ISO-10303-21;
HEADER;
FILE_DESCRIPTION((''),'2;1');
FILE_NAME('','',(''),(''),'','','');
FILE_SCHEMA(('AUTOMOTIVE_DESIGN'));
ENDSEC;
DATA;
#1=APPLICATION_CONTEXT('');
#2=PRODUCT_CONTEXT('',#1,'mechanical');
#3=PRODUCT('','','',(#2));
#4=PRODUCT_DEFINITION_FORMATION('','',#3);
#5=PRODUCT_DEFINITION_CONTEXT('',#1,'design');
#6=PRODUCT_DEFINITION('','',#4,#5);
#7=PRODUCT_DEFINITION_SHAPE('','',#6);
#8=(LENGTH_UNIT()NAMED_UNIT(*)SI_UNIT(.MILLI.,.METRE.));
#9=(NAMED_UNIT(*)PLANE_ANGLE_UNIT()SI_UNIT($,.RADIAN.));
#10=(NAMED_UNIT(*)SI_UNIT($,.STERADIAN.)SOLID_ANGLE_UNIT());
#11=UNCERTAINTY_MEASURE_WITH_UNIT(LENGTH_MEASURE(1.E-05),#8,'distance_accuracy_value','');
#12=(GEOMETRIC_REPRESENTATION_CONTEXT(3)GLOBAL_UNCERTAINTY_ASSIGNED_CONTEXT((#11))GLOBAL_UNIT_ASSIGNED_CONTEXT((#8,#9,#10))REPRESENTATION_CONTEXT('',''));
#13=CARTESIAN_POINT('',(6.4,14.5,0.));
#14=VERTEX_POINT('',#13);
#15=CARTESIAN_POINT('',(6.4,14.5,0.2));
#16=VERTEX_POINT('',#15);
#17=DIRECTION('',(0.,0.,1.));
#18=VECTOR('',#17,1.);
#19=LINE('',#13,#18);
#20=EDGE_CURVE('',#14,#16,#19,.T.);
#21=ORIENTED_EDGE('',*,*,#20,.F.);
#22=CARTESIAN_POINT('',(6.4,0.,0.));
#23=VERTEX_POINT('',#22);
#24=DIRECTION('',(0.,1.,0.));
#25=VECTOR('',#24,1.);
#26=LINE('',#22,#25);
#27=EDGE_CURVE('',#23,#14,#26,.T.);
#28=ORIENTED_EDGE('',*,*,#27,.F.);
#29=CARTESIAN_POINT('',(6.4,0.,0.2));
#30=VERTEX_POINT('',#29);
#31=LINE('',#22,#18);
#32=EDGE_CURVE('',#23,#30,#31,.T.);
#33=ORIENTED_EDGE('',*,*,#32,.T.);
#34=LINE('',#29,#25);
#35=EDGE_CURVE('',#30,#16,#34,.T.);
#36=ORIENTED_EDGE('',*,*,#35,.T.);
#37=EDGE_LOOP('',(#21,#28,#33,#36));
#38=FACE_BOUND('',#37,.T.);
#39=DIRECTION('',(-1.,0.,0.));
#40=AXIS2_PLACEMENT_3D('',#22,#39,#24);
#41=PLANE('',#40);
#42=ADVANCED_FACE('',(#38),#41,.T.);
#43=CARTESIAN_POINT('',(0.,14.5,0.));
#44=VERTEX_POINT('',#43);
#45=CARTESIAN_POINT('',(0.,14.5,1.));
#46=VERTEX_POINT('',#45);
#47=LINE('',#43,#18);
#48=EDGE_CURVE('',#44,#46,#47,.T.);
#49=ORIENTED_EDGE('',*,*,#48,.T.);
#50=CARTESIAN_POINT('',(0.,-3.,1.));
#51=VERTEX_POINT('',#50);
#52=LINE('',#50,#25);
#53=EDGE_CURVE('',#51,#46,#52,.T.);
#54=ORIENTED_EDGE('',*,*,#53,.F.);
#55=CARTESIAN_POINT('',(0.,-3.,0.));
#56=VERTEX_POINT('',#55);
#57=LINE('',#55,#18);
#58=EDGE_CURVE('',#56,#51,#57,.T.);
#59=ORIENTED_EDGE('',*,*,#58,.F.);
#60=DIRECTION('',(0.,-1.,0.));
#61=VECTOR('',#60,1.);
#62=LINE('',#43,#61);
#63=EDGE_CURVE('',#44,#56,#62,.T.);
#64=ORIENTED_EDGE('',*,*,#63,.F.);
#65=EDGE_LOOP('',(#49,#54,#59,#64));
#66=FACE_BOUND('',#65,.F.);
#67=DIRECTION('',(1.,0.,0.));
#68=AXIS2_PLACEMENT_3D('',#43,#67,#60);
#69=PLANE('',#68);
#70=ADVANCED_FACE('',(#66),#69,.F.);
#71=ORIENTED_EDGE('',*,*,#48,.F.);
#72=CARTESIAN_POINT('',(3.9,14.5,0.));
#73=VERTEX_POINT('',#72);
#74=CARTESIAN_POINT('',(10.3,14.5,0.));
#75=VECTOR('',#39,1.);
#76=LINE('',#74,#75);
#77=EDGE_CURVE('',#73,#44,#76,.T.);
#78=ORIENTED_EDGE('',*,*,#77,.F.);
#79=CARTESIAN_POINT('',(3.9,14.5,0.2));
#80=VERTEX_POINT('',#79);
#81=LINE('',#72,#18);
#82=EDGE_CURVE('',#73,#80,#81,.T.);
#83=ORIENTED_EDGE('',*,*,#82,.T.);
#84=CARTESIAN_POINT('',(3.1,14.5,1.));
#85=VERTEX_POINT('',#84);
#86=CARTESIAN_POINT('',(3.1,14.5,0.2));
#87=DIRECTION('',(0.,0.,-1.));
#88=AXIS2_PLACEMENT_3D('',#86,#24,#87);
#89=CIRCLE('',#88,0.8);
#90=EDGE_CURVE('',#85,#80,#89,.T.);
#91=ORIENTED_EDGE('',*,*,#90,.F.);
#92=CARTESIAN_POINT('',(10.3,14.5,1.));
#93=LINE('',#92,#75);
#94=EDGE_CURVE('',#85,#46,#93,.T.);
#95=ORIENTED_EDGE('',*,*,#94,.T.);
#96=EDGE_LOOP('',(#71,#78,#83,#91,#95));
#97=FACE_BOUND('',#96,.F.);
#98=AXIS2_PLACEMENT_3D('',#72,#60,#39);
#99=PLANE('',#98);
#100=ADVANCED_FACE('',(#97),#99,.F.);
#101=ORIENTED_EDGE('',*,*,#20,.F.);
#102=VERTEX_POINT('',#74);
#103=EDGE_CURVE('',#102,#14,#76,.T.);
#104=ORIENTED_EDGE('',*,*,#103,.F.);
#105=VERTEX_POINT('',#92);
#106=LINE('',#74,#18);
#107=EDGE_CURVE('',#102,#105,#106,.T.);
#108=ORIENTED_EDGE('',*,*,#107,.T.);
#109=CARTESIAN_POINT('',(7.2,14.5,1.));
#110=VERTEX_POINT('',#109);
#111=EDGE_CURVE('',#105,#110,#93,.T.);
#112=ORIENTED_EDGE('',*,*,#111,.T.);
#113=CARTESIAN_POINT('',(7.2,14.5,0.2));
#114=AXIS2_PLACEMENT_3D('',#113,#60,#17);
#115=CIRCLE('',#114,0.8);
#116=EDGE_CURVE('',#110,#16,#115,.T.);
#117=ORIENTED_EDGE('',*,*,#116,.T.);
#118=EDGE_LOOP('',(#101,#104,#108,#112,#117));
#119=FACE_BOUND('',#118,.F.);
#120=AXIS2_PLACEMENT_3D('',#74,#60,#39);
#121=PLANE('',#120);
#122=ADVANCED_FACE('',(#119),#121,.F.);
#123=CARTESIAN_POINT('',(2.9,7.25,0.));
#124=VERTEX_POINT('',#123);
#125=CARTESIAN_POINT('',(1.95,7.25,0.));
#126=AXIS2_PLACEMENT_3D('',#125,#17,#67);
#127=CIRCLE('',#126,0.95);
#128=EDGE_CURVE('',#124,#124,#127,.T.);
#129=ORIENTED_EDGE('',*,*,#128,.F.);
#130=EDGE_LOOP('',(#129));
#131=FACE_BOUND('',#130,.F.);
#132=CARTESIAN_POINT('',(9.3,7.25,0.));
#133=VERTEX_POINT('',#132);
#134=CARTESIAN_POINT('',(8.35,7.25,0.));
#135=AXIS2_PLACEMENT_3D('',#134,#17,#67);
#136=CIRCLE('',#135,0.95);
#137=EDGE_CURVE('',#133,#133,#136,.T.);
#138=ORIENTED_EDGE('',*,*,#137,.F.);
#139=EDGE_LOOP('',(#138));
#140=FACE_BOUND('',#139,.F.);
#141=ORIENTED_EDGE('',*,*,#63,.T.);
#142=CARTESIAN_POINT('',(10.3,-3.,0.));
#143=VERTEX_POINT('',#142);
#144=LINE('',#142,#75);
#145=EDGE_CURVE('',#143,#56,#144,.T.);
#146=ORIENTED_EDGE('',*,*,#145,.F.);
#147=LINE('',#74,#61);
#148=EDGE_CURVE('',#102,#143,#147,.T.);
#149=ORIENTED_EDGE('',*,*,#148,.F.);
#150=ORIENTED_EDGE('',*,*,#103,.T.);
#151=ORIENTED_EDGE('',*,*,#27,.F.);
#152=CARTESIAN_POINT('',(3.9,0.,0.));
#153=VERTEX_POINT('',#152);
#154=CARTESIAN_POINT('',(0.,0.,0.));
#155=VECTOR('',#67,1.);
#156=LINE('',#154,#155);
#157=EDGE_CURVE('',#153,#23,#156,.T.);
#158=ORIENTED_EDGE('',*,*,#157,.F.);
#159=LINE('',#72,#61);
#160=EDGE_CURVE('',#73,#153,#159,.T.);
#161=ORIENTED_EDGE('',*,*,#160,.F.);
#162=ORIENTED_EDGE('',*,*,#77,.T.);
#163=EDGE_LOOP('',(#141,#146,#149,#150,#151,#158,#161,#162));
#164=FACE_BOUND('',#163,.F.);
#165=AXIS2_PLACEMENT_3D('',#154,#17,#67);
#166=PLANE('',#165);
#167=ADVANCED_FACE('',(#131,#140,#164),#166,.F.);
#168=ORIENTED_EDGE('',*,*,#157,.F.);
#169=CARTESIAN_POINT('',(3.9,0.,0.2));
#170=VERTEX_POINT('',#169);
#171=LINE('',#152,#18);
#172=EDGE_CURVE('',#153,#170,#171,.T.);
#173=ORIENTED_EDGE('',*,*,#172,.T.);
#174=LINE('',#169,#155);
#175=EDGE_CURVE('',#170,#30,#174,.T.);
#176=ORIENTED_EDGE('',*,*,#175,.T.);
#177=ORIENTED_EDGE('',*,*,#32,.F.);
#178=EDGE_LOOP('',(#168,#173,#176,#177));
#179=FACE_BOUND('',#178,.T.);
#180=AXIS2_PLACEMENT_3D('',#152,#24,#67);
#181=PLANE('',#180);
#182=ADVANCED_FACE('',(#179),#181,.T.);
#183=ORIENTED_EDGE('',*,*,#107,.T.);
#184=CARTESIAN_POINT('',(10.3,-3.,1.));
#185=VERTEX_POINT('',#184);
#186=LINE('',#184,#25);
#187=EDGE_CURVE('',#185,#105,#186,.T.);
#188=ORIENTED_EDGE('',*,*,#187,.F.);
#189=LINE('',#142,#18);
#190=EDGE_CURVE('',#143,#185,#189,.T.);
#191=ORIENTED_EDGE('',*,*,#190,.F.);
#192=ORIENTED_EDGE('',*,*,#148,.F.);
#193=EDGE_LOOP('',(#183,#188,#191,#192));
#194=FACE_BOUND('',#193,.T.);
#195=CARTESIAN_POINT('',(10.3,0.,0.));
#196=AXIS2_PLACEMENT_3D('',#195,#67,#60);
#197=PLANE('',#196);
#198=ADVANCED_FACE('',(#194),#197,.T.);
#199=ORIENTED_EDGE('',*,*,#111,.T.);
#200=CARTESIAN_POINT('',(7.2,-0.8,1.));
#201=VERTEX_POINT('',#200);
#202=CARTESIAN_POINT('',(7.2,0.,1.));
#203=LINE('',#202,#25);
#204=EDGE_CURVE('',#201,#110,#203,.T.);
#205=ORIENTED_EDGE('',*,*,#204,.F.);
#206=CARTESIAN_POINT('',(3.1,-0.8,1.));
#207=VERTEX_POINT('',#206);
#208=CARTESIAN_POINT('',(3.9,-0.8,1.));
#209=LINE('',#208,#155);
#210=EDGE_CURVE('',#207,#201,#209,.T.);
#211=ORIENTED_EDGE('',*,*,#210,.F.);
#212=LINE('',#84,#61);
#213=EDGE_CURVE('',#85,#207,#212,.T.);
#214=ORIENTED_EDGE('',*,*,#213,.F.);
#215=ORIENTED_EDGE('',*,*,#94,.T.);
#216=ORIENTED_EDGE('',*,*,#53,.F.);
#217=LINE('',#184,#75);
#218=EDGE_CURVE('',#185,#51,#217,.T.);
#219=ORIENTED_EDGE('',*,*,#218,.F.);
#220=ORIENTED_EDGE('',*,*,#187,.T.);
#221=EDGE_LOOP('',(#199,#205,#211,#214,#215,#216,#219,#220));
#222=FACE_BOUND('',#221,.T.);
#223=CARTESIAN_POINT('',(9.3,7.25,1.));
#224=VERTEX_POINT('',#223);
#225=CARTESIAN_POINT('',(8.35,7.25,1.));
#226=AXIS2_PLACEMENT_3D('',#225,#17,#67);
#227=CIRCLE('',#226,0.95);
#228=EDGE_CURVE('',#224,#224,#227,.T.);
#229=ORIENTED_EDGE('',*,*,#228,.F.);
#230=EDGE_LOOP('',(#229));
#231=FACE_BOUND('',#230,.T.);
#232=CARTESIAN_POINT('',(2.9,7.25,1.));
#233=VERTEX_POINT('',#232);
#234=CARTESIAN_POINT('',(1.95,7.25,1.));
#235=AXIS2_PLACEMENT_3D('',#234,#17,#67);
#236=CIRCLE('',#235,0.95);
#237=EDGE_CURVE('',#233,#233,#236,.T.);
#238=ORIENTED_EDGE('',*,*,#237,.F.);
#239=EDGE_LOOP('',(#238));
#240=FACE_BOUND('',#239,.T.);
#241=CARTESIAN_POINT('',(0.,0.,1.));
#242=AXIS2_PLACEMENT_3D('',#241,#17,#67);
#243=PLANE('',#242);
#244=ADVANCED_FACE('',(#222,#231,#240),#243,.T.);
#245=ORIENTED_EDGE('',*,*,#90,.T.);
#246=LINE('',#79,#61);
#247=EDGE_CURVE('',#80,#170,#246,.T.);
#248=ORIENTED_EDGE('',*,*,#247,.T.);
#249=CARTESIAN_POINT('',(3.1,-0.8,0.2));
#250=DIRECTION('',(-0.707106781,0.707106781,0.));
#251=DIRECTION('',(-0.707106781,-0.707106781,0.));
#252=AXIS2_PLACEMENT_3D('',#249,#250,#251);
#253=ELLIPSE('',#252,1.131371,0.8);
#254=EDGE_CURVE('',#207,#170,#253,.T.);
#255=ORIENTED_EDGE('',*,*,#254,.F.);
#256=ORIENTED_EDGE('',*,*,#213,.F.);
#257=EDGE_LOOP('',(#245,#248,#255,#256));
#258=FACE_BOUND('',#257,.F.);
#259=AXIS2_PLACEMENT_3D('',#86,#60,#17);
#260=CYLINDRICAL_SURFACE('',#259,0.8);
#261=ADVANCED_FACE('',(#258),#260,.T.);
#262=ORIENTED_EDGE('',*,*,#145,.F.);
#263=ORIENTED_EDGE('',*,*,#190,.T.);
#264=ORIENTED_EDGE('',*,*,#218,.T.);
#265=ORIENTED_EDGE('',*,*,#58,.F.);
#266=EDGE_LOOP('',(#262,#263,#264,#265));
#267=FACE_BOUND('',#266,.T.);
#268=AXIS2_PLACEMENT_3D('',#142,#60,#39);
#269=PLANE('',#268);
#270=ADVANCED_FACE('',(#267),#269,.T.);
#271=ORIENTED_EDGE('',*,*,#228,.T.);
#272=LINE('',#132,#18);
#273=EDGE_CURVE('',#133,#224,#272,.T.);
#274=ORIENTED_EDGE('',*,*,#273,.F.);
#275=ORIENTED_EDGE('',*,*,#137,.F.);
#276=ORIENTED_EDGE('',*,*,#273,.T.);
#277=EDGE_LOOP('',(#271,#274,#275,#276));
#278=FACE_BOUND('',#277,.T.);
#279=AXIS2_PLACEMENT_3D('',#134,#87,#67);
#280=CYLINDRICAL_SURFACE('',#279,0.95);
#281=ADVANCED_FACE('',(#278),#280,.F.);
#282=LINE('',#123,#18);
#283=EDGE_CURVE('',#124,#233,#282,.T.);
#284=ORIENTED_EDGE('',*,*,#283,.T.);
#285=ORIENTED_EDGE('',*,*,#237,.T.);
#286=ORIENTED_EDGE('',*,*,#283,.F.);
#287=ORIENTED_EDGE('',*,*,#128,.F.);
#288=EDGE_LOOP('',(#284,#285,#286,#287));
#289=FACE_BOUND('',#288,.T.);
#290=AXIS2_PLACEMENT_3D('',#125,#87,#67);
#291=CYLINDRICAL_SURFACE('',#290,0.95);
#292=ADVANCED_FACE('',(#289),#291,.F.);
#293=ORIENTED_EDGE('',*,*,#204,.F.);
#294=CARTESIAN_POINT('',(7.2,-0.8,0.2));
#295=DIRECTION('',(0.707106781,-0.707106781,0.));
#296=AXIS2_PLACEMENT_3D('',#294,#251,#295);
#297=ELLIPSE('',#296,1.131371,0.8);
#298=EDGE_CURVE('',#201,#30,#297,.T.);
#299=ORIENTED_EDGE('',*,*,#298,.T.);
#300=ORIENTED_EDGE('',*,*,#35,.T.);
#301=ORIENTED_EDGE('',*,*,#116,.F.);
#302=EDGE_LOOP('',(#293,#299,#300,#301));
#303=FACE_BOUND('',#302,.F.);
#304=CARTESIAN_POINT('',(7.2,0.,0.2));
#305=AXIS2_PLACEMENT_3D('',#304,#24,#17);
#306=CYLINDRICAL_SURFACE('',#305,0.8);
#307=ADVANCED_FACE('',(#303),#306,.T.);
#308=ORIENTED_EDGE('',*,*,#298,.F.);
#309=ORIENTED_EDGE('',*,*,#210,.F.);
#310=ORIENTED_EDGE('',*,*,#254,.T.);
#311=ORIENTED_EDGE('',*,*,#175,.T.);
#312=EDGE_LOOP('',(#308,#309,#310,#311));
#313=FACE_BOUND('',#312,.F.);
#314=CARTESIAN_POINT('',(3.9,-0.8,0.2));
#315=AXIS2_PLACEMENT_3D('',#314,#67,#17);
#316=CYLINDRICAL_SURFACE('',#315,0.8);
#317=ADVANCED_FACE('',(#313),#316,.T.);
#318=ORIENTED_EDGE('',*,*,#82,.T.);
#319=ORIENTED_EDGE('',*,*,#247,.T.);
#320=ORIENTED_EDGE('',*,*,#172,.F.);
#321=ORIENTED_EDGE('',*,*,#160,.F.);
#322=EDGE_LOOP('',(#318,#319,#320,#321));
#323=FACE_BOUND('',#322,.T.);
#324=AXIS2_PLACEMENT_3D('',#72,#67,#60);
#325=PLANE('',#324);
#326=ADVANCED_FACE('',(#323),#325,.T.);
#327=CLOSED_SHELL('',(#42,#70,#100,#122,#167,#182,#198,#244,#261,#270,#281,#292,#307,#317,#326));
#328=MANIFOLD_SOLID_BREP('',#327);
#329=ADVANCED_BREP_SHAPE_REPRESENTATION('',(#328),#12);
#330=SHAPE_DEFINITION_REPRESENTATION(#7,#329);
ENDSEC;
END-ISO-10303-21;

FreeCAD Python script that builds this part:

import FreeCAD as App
import Part
import Sketcher
Q = App.Units.Quantity


def edges_at(feature, points):
    """Names of the edges that pass closest to the given points."""
    edges = feature.Shape.Edges
    near = lambda p: min(range(len(edges)), key=lambda i: edges[i].distToShape(Part.Vertex(*p))[0])
    return sorted({f"Edge{near(p) + 1}" for p in points})

doc = App.newDocument("Part")
params = doc.addObject("Spreadsheet::Sheet", "Params")
for row, (alias, value) in enumerate([
    ("sketch1_diameter", "1.9 mm"),
    ("sketch1_width", "10.3 mm"),
    ("sketch1_width2", "3.9 mm"),
    ("sketch1_height", "14.5 mm"),
    ("pad1_length", "1 mm"),
    ("fillet_radius", "0.8 mm"),
], start=1):
    params.set(f"A{row}", alias)
    params.set(f"B{row}", "=" + value)
    params.setAlias(f"B{row}", alias)

body = doc.addObject("PartDesign::Body", "Body")

# Sketch on XY plane
sketch1 = body.newObject("Sketcher::SketchObject", "Sketch")
sketch1.AttachmentSupport = (doc.getObject("XY_Plane"), [""])
sketch1.MapMode = "FlatFace"
sketch1.addGeometry([
    Part.LineSegment(App.Vector(0, 14.5, 0), App.Vector(0, -3, 0)),  # 0
    Part.LineSegment(App.Vector(0, -3, 0), App.Vector(10.3, -3, 0)),  # 1
    Part.LineSegment(App.Vector(10.3, -3, 0), App.Vector(10.3, 14.5, 0)),  # 2
    Part.LineSegment(App.Vector(10.3, 14.5, 0), App.Vector(6.4, 14.5, 0)),  # 3
    Part.LineSegment(App.Vector(6.4, 14.5, 0), App.Vector(6.4, 0, 0)),  # 4
    Part.LineSegment(App.Vector(6.4, 0, 0), App.Vector(3.9, 0, 0)),  # 5
    Part.LineSegment(App.Vector(3.9, 0, 0), App.Vector(3.9, 14.5, 0)),  # 6
    Part.LineSegment(App.Vector(3.9, 14.5, 0), App.Vector(0, 14.5, 0)),  # 7
    Part.Circle(App.Vector(1.9, 7.2, 0), App.Vector(0, 0, 1), 0.9),  # 8
    Part.Circle(App.Vector(8.3, 7.2, 0), App.Vector(0, 0, 1), 0.9),  # 9
], False)
sketch1.addConstraint([
    Sketcher.Constraint("Coincident", 0, 2, 1, 1),
    Sketcher.Constraint("Coincident", 1, 2, 2, 1),
    Sketcher.Constraint("Coincident", 2, 2, 3, 1),
    Sketcher.Constraint("Coincident", 3, 2, 4, 1),
    Sketcher.Constraint("Coincident", 4, 2, 5, 1),
    Sketcher.Constraint("Coincident", 5, 2, 6, 1),
    Sketcher.Constraint("Coincident", 6, 2, 7, 1),
    Sketcher.Constraint("Coincident", 7, 2, 0, 1),
    Sketcher.Constraint("Vertical", 0),
    Sketcher.Constraint("Horizontal", 1),
    Sketcher.Constraint("Vertical", 2),
    Sketcher.Constraint("Horizontal", 3),
    Sketcher.Constraint("Vertical", 4),
    Sketcher.Constraint("Horizontal", 5),
    Sketcher.Constraint("Vertical", 6),
    Sketcher.Constraint("Horizontal", 7),
    Sketcher.Constraint("Equal", 8, 9),
    Sketcher.Constraint("PointOnObject", 0, 2, -2),
    Sketcher.Constraint("PointOnObject", 4, 2, -1),
    Sketcher.Constraint("Horizontal", 8, 3, 9, 3),
    Sketcher.Constraint("Horizontal", 3, 2, 6, 2),
    Sketcher.Constraint("Equal", 3, 7),
    Sketcher.Constraint("Diameter", 8, Q("1.9 mm")),
    Sketcher.Constraint("DistanceX", 1, 1, 1, 2, Q("10.3 mm")),
    Sketcher.Constraint("DistanceX", 3, 2, 3, 1, Q("3.9 mm")),
    Sketcher.Constraint("DistanceY", 4, 2, 4, 1, Q("14.5 mm")),
    Sketcher.Constraint("DistanceY", 0, 2, -1, 1, Q("3 mm")),
    Sketcher.Constraint("DistanceX", -1, 1, 8, 3, Q("1.95 mm")),
    Sketcher.Constraint("DistanceY", -1, 1, 8, 3, Q("7.25 mm")),
    Sketcher.Constraint("DistanceX", 9, 3, 1, 2, Q("1.95 mm")),
])
sketch1.setExpression("Constraints[22]", "Params.sketch1_diameter")
sketch1.setExpression("Constraints[23]", "Params.sketch1_width")
sketch1.setExpression("Constraints[24]", "Params.sketch1_width2")
sketch1.setExpression("Constraints[25]", "Params.sketch1_height")
pad1 = body.newObject("PartDesign::Pad", "Pad")
pad1.Profile = sketch1
pad1.setExpression("Length", "Params.pad1_length")
doc.recompute()

fillet = body.newObject("PartDesign::Fillet", "Fillet")
fillet.Base = (pad1, edges_at(pad1, [(3.9, 7.25, 1), (5.15, 0, 1), (6.4, 7.25, 1)]))
fillet.setExpression("Radius", "Params.fillet_radius")

doc.recompute()
